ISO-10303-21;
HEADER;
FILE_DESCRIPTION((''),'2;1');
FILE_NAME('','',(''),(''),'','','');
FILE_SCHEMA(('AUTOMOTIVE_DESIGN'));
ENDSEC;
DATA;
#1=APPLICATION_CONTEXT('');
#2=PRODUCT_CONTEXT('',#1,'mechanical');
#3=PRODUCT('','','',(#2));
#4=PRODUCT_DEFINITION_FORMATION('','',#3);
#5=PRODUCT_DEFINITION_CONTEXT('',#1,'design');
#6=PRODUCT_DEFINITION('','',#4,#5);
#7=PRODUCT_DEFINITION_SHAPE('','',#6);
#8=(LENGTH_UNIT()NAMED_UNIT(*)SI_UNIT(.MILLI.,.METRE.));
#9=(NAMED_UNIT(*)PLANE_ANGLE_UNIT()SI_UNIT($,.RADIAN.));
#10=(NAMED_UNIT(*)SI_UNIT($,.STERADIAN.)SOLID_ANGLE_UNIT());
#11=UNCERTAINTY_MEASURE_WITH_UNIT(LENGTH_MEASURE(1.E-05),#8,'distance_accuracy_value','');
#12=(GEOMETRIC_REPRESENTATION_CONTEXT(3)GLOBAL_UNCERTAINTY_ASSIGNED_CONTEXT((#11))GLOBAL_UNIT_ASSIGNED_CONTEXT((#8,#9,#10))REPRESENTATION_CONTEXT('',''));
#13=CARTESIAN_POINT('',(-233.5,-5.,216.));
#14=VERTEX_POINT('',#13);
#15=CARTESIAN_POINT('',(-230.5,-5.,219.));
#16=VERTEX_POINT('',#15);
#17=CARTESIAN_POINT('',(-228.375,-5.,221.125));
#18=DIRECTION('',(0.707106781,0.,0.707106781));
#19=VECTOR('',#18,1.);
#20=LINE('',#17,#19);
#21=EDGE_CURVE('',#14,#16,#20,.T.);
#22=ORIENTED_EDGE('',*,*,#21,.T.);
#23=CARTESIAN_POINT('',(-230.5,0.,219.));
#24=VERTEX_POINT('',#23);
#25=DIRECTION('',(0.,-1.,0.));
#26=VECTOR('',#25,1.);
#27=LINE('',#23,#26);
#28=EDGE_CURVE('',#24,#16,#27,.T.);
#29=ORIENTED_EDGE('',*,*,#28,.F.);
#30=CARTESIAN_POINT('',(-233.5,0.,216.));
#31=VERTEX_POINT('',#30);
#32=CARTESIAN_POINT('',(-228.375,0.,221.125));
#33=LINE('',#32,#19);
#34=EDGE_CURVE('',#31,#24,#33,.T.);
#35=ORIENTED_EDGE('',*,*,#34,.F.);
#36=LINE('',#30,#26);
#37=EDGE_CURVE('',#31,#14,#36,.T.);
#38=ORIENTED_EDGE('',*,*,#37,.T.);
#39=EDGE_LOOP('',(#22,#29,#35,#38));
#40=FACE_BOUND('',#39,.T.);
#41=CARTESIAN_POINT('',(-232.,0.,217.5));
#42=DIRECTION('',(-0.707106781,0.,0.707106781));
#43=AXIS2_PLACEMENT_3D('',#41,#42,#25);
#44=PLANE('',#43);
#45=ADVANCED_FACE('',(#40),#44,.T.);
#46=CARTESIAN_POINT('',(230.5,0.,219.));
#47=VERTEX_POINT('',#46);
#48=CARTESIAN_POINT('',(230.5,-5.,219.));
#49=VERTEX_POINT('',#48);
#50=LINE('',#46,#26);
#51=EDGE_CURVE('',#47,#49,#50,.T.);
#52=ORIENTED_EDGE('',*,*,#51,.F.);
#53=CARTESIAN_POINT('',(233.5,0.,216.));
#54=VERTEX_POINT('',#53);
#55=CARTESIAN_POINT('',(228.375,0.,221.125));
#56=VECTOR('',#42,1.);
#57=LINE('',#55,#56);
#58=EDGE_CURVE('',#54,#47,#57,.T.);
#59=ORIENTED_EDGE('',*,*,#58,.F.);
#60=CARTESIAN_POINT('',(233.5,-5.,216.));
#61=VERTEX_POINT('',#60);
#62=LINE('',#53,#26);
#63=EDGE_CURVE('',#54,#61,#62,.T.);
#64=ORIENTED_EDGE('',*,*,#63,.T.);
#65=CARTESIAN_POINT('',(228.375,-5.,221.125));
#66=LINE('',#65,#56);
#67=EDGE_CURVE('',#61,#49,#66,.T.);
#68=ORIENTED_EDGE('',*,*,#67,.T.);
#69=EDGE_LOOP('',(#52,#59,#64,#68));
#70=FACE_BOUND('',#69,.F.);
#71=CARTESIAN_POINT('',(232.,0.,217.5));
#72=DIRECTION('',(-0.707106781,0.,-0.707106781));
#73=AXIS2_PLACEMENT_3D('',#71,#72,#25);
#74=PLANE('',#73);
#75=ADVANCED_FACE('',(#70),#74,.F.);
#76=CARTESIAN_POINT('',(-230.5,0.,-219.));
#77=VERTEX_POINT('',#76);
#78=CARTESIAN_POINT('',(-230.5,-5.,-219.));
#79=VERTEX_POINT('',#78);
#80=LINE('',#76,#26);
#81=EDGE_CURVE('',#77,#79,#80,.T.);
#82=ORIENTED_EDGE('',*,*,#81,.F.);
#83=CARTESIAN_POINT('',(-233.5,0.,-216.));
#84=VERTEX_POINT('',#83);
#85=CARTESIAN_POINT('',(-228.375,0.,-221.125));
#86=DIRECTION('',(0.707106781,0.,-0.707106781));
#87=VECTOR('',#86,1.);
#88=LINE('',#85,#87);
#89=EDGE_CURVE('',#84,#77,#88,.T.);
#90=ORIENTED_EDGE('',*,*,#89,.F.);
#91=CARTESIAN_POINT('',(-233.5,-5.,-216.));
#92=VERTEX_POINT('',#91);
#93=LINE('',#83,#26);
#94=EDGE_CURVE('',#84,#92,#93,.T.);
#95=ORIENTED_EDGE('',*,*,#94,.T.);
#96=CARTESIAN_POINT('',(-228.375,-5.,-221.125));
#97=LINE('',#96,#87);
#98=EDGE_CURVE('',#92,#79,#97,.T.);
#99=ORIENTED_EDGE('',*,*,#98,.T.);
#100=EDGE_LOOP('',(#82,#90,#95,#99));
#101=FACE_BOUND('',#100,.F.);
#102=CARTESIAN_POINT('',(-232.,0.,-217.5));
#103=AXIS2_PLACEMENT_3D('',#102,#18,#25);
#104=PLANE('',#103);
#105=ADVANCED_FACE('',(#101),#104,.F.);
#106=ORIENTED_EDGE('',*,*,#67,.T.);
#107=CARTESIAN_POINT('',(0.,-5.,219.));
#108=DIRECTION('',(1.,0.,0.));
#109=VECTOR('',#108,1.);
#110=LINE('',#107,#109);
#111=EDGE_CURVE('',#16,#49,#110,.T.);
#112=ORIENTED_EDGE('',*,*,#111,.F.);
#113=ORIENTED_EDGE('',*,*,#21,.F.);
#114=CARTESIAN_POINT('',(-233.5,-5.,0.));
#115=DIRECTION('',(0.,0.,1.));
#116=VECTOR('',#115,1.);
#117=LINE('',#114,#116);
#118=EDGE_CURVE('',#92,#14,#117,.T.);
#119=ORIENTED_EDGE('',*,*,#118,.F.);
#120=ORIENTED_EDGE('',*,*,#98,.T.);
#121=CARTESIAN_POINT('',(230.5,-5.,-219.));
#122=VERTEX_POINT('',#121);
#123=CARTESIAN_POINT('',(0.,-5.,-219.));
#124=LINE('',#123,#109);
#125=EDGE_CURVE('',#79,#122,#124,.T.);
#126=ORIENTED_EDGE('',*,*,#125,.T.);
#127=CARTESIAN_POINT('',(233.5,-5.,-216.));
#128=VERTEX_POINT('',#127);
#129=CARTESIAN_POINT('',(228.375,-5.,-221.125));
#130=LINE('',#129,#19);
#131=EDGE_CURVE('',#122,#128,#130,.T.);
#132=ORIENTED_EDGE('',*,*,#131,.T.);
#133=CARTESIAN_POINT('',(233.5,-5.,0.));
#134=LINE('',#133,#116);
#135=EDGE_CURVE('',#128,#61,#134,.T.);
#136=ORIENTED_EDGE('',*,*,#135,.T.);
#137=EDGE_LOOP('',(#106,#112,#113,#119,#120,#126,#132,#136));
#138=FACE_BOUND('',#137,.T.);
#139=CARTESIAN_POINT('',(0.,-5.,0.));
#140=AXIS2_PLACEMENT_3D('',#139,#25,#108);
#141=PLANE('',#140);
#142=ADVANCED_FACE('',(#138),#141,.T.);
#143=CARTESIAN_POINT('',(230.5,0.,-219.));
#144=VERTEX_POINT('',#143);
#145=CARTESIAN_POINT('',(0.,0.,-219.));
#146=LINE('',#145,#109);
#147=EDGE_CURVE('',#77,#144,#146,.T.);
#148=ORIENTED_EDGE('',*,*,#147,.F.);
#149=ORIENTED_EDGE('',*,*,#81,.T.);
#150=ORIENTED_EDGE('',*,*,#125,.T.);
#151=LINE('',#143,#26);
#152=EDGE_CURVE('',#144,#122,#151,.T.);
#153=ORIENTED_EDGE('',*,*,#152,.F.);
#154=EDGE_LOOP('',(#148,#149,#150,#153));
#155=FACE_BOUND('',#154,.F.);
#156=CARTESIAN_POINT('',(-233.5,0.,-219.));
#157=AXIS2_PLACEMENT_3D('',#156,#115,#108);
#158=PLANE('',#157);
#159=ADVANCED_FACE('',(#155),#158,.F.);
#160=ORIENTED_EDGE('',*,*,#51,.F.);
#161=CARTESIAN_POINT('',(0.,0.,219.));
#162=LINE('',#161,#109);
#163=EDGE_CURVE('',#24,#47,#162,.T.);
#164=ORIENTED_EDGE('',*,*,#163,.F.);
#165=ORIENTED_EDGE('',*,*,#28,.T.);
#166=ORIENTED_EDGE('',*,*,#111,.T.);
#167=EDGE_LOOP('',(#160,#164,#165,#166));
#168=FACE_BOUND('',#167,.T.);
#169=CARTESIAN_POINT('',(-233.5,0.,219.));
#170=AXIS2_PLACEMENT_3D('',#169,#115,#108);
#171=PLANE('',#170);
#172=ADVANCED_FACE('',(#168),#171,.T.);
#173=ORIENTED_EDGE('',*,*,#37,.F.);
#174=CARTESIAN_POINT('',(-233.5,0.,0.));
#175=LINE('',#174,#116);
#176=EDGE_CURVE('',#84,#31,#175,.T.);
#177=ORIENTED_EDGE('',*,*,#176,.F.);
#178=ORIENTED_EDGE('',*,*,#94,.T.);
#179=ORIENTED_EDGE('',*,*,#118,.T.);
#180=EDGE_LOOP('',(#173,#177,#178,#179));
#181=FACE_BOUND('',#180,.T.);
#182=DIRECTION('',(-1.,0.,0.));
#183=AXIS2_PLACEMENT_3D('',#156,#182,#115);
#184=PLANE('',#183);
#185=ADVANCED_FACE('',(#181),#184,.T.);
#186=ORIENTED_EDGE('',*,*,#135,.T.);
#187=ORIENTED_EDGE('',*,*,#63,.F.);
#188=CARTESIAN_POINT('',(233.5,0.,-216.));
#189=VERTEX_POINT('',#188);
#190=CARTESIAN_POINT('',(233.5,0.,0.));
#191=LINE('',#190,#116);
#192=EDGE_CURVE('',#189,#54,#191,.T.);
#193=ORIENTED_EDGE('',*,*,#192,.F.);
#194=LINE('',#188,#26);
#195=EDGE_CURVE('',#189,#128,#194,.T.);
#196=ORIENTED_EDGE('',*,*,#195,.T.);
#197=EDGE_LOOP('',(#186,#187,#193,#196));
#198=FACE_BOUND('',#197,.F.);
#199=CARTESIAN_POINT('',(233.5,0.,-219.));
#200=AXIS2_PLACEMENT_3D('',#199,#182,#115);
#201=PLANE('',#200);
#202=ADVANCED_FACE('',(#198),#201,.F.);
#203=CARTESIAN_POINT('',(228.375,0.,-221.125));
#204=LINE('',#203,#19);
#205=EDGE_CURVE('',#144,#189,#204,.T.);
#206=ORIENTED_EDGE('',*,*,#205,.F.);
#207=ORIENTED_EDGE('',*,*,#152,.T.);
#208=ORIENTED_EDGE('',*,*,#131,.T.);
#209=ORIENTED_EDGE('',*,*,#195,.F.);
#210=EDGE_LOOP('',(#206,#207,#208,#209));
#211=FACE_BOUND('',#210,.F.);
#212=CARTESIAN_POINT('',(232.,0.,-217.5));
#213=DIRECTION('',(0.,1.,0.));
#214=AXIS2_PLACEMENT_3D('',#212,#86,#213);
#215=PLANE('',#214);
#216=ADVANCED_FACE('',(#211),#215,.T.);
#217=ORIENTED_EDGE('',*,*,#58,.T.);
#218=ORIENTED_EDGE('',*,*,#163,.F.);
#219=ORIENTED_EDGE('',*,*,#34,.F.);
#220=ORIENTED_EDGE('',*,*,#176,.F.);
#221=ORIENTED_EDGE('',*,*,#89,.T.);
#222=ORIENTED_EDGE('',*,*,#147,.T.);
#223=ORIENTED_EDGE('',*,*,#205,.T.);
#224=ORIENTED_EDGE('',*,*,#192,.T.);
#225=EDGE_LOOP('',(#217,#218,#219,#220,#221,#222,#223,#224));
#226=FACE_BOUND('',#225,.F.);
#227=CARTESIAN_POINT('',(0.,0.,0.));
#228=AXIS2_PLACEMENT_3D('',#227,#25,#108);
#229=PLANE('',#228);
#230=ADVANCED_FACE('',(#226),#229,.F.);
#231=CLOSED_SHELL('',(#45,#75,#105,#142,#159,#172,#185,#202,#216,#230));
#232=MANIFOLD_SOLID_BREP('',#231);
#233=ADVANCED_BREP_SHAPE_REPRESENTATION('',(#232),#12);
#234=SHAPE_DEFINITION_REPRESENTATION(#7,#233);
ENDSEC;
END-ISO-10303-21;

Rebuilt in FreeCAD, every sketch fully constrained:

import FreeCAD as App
import Part
import Sketcher

V = App.Vector


def edges_at(feature, points):
    """Names of the edges that pass closest to the given points."""
    edges = feature.Shape.Edges
    near = lambda p: min(range(len(edges)), key=lambda i: edges[i].distToShape(Part.Vertex(*p))[0])
    return sorted({f"Edge{near(p) + 1}" for p in points})

doc = App.newDocument("Part")
body = doc.addObject("PartDesign::Body", "Body")

# Sketch on XZ plane
sketch1 = doc.addObject("Sketcher::SketchObject", "Sketch")
body.addObject(sketch1)
sketch1.AttachmentSupport = (doc.XZ_Plane, [""])
sketch1.MapMode = "FlatFace"
sketch1.addGeometry(Part.LineSegment(V(-234, 219, 0), V(-234, -219, 0)), False)
sketch1.addGeometry(Part.LineSegment(V(-234, -219, 0), V(234, -219, 0)), False)
sketch1.addGeometry(Part.LineSegment(V(234, -219, 0), V(234, 219, 0)), False)
sketch1.addGeometry(Part.LineSegment(V(234, 219, 0), V(-234, 219, 0)), False)
sketch1.addConstraint(Sketcher.Constraint("Coincident", 0, 2, 1, 1))
sketch1.addConstraint(Sketcher.Constraint("Coincident", 1, 2, 2, 1))
sketch1.addConstraint(Sketcher.Constraint("Coincident", 2, 2, 3, 1))
sketch1.addConstraint(Sketcher.Constraint("Coincident", 3, 2, 0, 1))
sketch1.addConstraint(Sketcher.Constraint("Vertical", 0))
sketch1.addConstraint(Sketcher.Constraint("Horizontal", 1))
sketch1.addConstraint(Sketcher.Constraint("Vertical", 2))
sketch1.addConstraint(Sketcher.Constraint("Horizontal", 3))
sketch1.addConstraint(Sketcher.Constraint("Symmetric", 0, 2, 2, 2, -1, 1))
sketch1.addConstraint(Sketcher.Constraint("DistanceX", 1, 1, 1, 2, 467.0))
sketch1.addConstraint(Sketcher.Constraint("DistanceY", 0, 2, 0, 1, 438.0))
pad1 = doc.addObject("PartDesign::Pad", "Pad")
body.addObject(pad1)
pad1.Profile = sketch1
pad1.Length = 5
doc.recompute()

chamfer = doc.addObject("PartDesign::Chamfer", "Chamfer")
body.addObject(chamfer)
chamfer.Base = (pad1, edges_at(pad1, [
    (-233.5, -2.5, 219),
    (-233.5, -2.5, -219),
    (233.5, -2.5, -219),
    (233.5, -2.5, 219),
]))
chamfer.ChamferType = "Two distances"
chamfer.Size = 3
chamfer.Size2 = 3

doc.recompute()
